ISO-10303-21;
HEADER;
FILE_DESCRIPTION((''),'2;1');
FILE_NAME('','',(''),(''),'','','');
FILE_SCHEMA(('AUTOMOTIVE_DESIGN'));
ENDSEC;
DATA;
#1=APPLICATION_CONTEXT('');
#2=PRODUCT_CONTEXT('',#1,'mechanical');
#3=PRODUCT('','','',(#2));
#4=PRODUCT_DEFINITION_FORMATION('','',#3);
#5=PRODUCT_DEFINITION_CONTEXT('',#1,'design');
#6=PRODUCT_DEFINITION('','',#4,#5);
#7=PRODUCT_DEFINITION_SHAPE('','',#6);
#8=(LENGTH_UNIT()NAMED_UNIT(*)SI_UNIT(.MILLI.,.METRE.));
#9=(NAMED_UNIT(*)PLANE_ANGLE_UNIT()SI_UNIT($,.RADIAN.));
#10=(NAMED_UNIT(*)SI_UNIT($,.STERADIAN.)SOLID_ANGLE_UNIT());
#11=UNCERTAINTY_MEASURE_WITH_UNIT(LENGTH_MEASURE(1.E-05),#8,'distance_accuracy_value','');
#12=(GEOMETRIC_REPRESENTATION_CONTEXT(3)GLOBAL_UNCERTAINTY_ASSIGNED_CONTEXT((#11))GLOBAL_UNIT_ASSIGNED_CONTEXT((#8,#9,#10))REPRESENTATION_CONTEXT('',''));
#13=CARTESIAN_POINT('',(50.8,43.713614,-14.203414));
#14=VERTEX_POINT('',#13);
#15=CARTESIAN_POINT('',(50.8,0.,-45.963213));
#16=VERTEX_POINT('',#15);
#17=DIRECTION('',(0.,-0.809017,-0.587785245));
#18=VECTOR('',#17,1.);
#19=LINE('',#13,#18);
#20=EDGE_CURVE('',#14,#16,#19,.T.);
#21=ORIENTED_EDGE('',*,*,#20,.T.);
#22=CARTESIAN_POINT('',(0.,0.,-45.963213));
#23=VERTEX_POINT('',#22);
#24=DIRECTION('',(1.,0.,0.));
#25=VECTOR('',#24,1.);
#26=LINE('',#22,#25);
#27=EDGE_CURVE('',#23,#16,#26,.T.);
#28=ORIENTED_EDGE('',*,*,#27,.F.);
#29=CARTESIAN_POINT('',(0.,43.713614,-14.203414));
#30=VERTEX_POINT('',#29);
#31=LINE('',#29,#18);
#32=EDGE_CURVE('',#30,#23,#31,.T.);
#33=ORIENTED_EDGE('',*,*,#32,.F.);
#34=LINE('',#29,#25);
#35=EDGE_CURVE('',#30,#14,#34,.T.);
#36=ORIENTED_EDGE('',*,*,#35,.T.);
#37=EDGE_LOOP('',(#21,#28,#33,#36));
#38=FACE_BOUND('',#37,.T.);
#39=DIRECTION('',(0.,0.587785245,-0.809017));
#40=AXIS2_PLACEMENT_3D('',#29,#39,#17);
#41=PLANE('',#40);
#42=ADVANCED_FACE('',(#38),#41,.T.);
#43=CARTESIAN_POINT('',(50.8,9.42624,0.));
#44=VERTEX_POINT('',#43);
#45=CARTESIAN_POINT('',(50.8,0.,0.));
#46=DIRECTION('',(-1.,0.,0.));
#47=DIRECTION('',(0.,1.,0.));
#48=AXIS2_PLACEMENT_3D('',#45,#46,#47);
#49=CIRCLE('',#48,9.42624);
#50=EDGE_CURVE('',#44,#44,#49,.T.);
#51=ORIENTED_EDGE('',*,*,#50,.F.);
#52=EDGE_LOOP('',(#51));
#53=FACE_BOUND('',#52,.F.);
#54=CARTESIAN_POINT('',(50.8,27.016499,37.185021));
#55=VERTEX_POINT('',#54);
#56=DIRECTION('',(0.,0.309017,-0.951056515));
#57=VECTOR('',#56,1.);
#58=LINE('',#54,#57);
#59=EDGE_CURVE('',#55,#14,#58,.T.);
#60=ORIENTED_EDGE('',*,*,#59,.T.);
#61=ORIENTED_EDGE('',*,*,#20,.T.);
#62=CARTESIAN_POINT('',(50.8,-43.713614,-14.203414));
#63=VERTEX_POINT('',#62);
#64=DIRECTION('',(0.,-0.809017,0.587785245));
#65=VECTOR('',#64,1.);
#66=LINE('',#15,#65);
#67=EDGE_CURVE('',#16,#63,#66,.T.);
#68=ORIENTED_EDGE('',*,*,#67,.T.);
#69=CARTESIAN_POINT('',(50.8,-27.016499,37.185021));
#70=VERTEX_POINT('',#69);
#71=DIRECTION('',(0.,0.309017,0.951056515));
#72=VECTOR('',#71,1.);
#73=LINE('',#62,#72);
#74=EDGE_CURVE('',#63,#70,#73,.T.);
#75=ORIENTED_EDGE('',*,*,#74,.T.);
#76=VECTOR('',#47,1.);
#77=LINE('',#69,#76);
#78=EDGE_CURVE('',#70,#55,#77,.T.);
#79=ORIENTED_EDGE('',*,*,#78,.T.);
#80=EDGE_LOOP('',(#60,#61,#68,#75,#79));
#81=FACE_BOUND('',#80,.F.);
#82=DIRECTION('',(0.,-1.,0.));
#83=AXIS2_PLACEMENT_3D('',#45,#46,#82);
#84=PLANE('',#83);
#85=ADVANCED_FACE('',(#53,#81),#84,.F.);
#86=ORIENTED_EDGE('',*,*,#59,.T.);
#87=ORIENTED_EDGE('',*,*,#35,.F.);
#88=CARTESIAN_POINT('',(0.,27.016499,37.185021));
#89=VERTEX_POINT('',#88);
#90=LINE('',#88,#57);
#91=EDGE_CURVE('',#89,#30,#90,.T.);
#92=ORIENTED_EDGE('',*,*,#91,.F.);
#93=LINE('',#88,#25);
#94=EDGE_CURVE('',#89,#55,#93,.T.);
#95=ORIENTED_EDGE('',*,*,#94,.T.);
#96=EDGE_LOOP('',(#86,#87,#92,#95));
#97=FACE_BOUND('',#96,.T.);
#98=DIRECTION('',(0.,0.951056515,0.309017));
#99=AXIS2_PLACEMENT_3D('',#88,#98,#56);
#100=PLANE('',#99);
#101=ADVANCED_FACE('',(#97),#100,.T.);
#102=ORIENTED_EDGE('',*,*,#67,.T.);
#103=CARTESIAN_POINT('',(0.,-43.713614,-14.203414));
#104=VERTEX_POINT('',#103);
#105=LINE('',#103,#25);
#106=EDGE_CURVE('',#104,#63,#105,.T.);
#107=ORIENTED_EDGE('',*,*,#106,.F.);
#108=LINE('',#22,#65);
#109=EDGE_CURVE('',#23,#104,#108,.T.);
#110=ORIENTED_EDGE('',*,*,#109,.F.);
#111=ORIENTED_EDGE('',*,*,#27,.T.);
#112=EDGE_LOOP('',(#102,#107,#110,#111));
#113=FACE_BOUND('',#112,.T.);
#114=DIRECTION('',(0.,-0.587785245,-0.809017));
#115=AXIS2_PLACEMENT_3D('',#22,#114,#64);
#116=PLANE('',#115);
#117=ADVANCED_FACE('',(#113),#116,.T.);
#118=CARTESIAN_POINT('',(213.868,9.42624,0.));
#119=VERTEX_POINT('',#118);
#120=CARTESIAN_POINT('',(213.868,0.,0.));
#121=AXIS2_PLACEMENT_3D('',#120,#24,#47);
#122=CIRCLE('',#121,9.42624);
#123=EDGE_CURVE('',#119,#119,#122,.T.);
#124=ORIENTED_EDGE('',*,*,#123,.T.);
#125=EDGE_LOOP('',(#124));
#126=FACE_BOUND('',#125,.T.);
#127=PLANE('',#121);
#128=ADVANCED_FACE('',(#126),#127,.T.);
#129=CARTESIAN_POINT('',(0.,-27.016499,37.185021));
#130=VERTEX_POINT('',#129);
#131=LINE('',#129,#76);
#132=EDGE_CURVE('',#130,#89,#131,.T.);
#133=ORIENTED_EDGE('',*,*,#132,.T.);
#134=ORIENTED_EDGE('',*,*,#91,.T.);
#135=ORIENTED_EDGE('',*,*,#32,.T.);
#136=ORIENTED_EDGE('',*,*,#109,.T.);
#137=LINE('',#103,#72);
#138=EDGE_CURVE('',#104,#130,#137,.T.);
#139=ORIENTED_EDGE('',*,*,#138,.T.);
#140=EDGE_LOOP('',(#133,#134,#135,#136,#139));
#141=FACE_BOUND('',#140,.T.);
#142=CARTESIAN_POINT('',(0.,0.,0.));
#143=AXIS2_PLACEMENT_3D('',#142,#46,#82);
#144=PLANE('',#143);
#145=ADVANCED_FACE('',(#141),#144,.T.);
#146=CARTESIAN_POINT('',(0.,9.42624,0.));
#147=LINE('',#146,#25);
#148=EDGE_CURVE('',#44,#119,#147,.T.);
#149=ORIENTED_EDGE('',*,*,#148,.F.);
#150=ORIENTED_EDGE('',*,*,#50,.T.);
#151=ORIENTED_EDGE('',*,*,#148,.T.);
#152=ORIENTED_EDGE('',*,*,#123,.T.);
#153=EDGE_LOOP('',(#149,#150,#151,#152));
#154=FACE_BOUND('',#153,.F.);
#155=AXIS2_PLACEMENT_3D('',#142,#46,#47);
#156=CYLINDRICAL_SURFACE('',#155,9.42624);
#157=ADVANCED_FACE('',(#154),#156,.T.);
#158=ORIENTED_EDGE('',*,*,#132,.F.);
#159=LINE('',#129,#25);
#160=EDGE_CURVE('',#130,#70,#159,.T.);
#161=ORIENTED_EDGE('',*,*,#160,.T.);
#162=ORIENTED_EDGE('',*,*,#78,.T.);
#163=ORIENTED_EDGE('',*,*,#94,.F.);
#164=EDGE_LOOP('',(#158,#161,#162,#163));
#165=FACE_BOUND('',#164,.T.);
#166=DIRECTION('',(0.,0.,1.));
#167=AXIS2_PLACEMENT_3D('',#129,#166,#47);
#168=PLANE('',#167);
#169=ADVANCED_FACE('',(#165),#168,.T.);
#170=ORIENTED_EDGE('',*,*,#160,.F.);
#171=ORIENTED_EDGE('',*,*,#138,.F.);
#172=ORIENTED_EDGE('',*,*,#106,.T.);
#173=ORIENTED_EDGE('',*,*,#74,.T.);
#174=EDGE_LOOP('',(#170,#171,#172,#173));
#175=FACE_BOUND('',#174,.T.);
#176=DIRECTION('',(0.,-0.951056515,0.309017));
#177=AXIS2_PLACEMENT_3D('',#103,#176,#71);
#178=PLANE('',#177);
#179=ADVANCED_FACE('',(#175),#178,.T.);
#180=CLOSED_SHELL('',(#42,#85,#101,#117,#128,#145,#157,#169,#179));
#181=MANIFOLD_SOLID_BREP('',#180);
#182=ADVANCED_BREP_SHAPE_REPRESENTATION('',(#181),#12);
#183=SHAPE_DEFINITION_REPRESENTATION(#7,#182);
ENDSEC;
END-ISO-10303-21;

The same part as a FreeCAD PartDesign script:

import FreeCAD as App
import Part
import Sketcher

V = App.Vector
Q = App.Units.Quantity


def add_polygon(sketch, points):
    """Adds a closed chain of lines whose ends are joined by coincident constraints."""
    first, n = sketch.GeometryCount, len(points)
    for a, b in zip(points, points[1:] + points[:1]):
        sketch.addGeometry(Part.LineSegment(App.Vector(*a, 0), App.Vector(*b, 0)), False)
    for i in range(n):
        sketch.addConstraint(Sketcher.Constraint("Coincident", first + i, 2, first + (i + 1) % n, 1))

doc = App.newDocument("Part")
params = doc.addObject("Spreadsheet::Sheet", "Params")
for row, (alias, value) in enumerate([
    ("pad1_length", "8.42 in"),
    ("pad2_length", "2 in"),
], start=1):
    params.set(f"A{row}", alias)
    params.set(f"B{row}", "=" + value)
    params.setAlias(f"B{row}", alias)

body = doc.addObject("PartDesign::Body", "Body")

sketch1 = doc.addObject("Sketcher::SketchObject", "Sketch")
body.addObject(sketch1)
sketch1.AttachmentSupport = (doc.YZ_Plane, [""])
sketch1.MapMode = "FlatFace"
sketch1.addGeometry(Part.Circle(V(0, 0, 0), V(0, 0, 1), 9.42624), False)
sketch1.addConstraint([
    Sketcher.Constraint("Coincident", 0, 3, -1, 1),
    Sketcher.Constraint("Diameter", 0, Q("18.85248 mm")),
])
pad1 = doc.addObject("PartDesign::Pad", "Pad")
body.addObject(pad1)
pad1.Profile = sketch1
pad1.setExpression("Length", "Params.pad1_length")

sketch2 = doc.addObject("Sketcher::SketchObject", "Sketch001")
body.addObject(sketch2)
sketch2.AttachmentSupport = (doc.YZ_Plane, [""])
sketch2.MapMode = "FlatFace"
add_polygon(sketch2, [(-27.016499, 37.185021), (27.016499, 37.185021), (43.713614, -14.203414), (0, -45.963213), (-43.713614, -14.203414)])
sketch2.addConstraint([
    Sketcher.Constraint("Horizontal", 0),
    Sketcher.Constraint("Symmetric", 1, 2, 3, 2, -2),
    Sketcher.Constraint("PointOnObject", 2, 2, -2),
    Sketcher.Constraint("Equal", 1, 2),
    Sketcher.Constraint("Equal", 3, 4),
    Sketcher.Constraint("Angle", 1, Q("-72 deg")),
    Sketcher.Constraint("Angle", 2, Q("-144.000001 deg")),
    Sketcher.Constraint("Distance", 1, Q("54.032998 mm")),
    Sketcher.Constraint("DistanceY", -1, 1, 0, 2, Q("37.185021 mm")),
])
pad2 = doc.addObject("PartDesign::Pad", "Pad001")
body.addObject(pad2)
pad2.Profile = sketch2
pad2.setExpression("Length", "Params.pad2_length")

doc.recompute()
